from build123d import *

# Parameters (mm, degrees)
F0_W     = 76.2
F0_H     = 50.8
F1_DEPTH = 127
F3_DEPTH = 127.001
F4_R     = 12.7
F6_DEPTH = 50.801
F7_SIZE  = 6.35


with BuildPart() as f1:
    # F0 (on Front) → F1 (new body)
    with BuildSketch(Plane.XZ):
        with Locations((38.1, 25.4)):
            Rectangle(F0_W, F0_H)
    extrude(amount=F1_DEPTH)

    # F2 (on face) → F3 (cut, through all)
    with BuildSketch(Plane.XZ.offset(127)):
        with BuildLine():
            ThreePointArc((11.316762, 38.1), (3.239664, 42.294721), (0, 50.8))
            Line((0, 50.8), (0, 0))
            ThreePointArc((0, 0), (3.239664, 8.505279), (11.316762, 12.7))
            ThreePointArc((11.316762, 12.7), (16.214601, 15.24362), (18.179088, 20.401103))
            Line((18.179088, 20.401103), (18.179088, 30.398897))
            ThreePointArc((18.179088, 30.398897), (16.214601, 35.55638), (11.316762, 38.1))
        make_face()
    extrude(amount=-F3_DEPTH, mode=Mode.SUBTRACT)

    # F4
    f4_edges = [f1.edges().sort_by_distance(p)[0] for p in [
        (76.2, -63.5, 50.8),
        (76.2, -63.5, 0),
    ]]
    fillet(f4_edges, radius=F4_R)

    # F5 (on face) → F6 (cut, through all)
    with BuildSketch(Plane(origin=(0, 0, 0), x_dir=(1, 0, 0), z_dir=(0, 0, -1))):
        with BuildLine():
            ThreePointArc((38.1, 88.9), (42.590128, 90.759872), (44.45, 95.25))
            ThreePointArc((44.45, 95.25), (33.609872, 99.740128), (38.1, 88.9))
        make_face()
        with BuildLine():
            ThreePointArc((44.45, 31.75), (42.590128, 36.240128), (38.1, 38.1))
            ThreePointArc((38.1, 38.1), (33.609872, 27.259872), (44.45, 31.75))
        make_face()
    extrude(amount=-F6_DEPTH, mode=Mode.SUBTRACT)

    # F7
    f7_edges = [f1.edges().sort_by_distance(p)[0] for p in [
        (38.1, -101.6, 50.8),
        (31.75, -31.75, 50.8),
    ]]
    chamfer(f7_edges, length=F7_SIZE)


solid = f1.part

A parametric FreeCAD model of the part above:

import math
import FreeCAD as App
import Part
import Sketcher
Q = App.Units.Quantity


def edges_at(feature, points):
    """Names of the edges that pass closest to the given points."""
    edges = feature.Shape.Edges
    near = lambda p: min(range(len(edges)), key=lambda i: edges[i].distToShape(Part.Vertex(*p))[0])
    return sorted({f"Edge{near(p) + 1}" for p in points})


def add_polygon(sketch, points):
    """Adds a closed chain of lines whose ends are joined by coincident constraints."""
    first, n = sketch.GeometryCount, len(points)
    for a, b in zip(points, points[1:] + points[:1]):
        sketch.addGeometry(Part.LineSegment(App.Vector(*a, 0), App.Vector(*b, 0)), False)
    for i in range(n):
        sketch.addConstraint(Sketcher.Constraint("Coincident", first + i, 2, first + (i + 1) % n, 1))

doc = App.newDocument("Part")
body = doc.addObject("PartDesign::Body", "Body")

# Sketch on XZ plane
sketch1 = body.newObject("Sketcher::SketchObject", "Sketch")
sketch1.AttachmentSupport = (doc.getObject("XZ_Plane"), [""])
sketch1.MapMode = "FlatFace"
add_polygon(sketch1, [(0, 51), (0, 0), (76, 0), (76, 51)])  # lines 0-3
sketch1.addConstraint([
    Sketcher.Constraint("Vertical", 0),
    Sketcher.Constraint("Horizontal", 1),
    Sketcher.Constraint("Vertical", 2),
    Sketcher.Constraint("Horizontal", 3),
    Sketcher.Constraint("Coincident", 0, 2, -1, 1),
    Sketcher.Constraint("DistanceX", 1, 1, 1, 2, Q("3 in")),
    Sketcher.Constraint("DistanceY", 0, 2, 0, 1, Q("2 in")),
])
pad1 = body.newObject("PartDesign::Pad", "Pad")
pad1.Profile = sketch1
pad1.Length = Q("5 in")

# Sketch on XZ plane
sketch2 = body.newObject("Sketcher::SketchObject", "Sketch001")
sketch2.AttachmentSupport = (doc.getObject("XZ_Plane"), [""])
sketch2.MapMode = "FlatFace"
sketch2.AttachmentOffset = App.Placement(App.Vector(0, 0, 5 * 25.4), App.Rotation())
sketch2.addGeometry([
    Part.ArcOfCircle(Part.Circle(App.Vector(13, 51, 0), App.Vector(0, 0, 1), 13), math.radians(-180), math.radians(-97)),  # 0
    Part.LineSegment(App.Vector(0, 51, 0), App.Vector(0, 0, 0)),  # 1
    Part.ArcOfCircle(Part.Circle(App.Vector(13, 0, 0), App.Vector(0, 0, 1), 13), math.radians(97), math.radians(180)),  # 2
    Part.ArcOfCircle(Part.Circle(App.Vector(10, 20, 0), App.Vector(0, 0, 1), 8), math.radians(-83), math.radians(0)),  # 3
    Part.LineSegment(App.Vector(18, 20, 0), App.Vector(18, 30, 0)),  # 4
    Part.ArcOfCircle(Part.Circle(App.Vector(10, 30, 0), App.Vector(0, 0, 1), 8), math.radians(0), math.radians(83)),  # 5
], False)
sketch2.addConstraint([
    Sketcher.Constraint("Tangent", 0, 1, 1, 1),
    Sketcher.Constraint("Tangent", 1, 2, 2, 2),
    Sketcher.Constraint("Tangent", 2, 1, 3, 1),
    Sketcher.Constraint("Tangent", 3, 2, 4, 1),
    Sketcher.Constraint("Tangent", 4, 2, 5, 1),
    Sketcher.Constraint("Tangent", 5, 2, 0, 2),
    Sketcher.Constraint("Vertical", 1),
    Sketcher.Constraint("Vertical", 4),
    Sketcher.Constraint("Coincident", 1, 2, -1, 1),
    Sketcher.Constraint("Equal", 0, 2),
    Sketcher.Constraint("Equal", 3, 5),
    Sketcher.Constraint("DistanceY", 1, 2, 1, 1, Q("2 in")),
    Sketcher.Constraint("DistanceY", -1, 1, 2, 1, Q("0.5 in")),
    Sketcher.Constraint("Radius", 0, Q("12.784537 mm")),
    Sketcher.Constraint("Radius", 3, Q("7.752364 mm")),
])
pocket1 = body.newObject("PartDesign::Pocket", "Pocket")
pocket1.Profile = sketch2
pocket1.Type = "ThroughAll"
doc.recompute()

fillet = body.newObject("PartDesign::Fillet", "Fillet")
fillet.Base = (pocket1, edges_at(pocket1, [(76.2, -63.5, 50.8), (76.2, -63.5, 0)]))
fillet.Radius = Q("0.5 in")

# Sketch on XY plane
sketch3 = body.newObject("Sketcher::SketchObject", "Sketch002")
sketch3.AttachmentSupport = (doc.getObject("XY_Plane"), [""])
sketch3.MapMode = "FlatFace"
sketch3.addGeometry([
    Part.ArcOfCircle(Part.Circle(App.Vector(38, -95, 0), App.Vector(0, 0, 1), 6), math.radians(0), math.radians(90)),
    Part.ArcOfCircle(Part.Circle(App.Vector(38, -95, 0), App.Vector(0, 0, 1), 6), math.radians(90), math.radians(360)),
    Part.ArcOfCircle(Part.Circle(App.Vector(38, -32, 0), App.Vector(0, 0, 1), 6), math.radians(-90), math.radians(0)),
    Part.ArcOfCircle(Part.Circle(App.Vector(38, -32, 0), App.Vector(0, 0, 1), 6), math.radians(0), math.radians(270)),
], False)
sketch3.addConstraint([
    Sketcher.Constraint("Tangent", 0, 1, 1, 2),
    Sketcher.Constraint("Coincident", 1, 1, 0, 2),
    Sketcher.Constraint("Tangent", 2, 1, 3, 2),
    Sketcher.Constraint("Coincident", 3, 1, 2, 2),
    Sketcher.Constraint("Equal", 1, 2),
    Sketcher.Constraint("Horizontal", 1, 3, 0, 1),
    Sketcher.Constraint("Horizontal", 2, 3, 3, 1),
    Sketcher.Constraint("Vertical", 1, 3, 2, 3),
    Sketcher.Constraint("Vertical", 3, 3, 1, 1),
    Sketcher.Constraint("Vertical", 1, 1, 2, 1),
    Sketcher.Constraint("Radius", 0, Q("0.25 in")),
    Sketcher.Constraint("DistanceY", 1, 1, 2, 1, Q("2 in")),
    Sketcher.Constraint("DistanceX", -1, 1, 0, 3, Q("1.5 in")),
    Sketcher.Constraint("DistanceY", 1, 1, -1, 1, Q("3.5 in")),
])
pocket2 = body.newObject("PartDesign::Pocket", "Pocket001")
pocket2.Profile = sketch3
pocket2.Type = "ThroughAll"
pocket2.Reversed = True
doc.recompute()

chamfer = body.newObject("PartDesign::Chamfer", "Chamfer")
chamfer.Base = (pocket2, edges_at(pocket2, [(33.61, -99.74, 50.8), (33.61, -27.26, 50.8)]))
chamfer.Size = Q("0.25 in")

doc.recompute()
